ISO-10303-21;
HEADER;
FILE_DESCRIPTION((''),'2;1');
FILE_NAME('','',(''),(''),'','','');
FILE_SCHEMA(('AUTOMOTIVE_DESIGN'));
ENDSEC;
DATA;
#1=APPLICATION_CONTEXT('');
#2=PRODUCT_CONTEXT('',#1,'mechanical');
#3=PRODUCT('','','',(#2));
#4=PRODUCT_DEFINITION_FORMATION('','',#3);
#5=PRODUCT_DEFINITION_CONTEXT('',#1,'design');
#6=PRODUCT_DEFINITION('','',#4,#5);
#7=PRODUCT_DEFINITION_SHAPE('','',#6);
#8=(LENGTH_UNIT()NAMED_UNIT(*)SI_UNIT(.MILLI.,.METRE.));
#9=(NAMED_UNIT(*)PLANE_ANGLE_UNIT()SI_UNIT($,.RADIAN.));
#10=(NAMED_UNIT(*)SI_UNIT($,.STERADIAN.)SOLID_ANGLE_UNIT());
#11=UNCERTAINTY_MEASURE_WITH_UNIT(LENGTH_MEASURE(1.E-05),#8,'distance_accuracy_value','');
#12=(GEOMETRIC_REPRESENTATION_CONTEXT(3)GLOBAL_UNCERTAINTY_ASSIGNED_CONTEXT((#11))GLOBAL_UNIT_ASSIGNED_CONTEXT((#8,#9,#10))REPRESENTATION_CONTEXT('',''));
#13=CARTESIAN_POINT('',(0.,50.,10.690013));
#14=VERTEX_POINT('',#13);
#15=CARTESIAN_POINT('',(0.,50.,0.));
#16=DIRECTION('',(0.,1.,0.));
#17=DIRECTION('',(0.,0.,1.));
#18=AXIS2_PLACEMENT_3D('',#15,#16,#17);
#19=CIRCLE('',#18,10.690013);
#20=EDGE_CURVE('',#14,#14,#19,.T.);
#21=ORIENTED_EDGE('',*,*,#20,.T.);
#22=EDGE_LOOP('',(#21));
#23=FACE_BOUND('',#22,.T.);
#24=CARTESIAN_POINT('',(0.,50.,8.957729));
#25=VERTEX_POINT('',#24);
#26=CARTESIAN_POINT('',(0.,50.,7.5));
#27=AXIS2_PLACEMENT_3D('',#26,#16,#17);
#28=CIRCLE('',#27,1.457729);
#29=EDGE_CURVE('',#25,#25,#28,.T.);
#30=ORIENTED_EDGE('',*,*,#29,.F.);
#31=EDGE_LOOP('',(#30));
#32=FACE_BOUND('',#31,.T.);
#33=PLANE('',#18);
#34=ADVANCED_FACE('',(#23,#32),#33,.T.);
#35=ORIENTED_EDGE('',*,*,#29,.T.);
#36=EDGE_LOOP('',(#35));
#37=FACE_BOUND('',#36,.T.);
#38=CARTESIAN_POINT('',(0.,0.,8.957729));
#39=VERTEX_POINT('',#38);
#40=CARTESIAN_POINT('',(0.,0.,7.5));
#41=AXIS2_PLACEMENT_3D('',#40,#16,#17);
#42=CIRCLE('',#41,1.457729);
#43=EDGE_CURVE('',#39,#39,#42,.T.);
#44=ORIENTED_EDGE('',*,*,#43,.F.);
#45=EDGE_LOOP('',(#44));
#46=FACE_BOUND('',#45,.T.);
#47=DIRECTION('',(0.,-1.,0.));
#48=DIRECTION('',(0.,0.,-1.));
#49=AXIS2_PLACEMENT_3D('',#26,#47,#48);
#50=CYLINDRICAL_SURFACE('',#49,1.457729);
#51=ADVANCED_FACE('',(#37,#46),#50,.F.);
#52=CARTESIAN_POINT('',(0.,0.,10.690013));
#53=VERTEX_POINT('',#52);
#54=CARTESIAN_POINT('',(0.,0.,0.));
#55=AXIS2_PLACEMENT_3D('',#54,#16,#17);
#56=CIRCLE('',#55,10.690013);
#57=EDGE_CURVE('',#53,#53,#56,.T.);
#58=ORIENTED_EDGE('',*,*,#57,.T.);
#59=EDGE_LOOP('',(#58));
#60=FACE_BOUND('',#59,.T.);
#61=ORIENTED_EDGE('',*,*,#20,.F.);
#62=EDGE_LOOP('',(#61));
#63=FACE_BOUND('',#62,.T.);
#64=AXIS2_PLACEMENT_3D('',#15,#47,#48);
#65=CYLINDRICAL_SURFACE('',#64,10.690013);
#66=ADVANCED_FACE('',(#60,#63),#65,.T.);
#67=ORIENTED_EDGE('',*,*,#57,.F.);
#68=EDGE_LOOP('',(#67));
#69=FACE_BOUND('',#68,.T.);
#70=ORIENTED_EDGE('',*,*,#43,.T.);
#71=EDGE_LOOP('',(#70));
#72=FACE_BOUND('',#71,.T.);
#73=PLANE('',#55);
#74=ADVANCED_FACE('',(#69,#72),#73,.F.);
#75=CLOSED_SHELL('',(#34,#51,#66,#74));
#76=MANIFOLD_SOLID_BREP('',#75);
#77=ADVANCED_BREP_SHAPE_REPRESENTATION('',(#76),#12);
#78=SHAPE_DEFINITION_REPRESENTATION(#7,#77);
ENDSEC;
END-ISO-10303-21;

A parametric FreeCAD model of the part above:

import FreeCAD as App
import Part
import Sketcher
Q = App.Units.Quantity

doc = App.newDocument("Part")
body = doc.addObject("PartDesign::Body", "Body")

sketch1 = body.newObject("Sketcher::SketchObject", "Sketch")
sketch1.AttachmentSupport = (doc.getObject("XZ_Plane"), [""])
sketch1.MapMode = "FlatFace"
sketch1.addGeometry(Part.Circle(App.Vector(0, 0, 0), App.Vector(0, 0, 1), 10.7), False)
sketch1.addGeometry(Part.Circle(App.Vector(0, 7.5, 0), App.Vector(0, 0, 1), 1.5), False)
sketch1.addConstraint(Sketcher.Constraint("Coincident", 0, 3, -1, 1))
sketch1.addConstraint(Sketcher.Constraint("PointOnObject", 1, 3, -2))
sketch1.addConstraint(Sketcher.Constraint("DistanceY", -1, 1, 1, 3, Q("7.5 mm")))
sketch1.addConstraint(Sketcher.Constraint("Diameter", 1, Q("2.915458 mm")))
sketch1.addConstraint(Sketcher.Constraint("Diameter", 0, Q("21.380026 mm")))
pad1 = body.newObject("PartDesign::Pad", "Pad")
pad1.Profile = sketch1
pad1.Length = 50
pad1.Reversed = True

doc.recompute()
